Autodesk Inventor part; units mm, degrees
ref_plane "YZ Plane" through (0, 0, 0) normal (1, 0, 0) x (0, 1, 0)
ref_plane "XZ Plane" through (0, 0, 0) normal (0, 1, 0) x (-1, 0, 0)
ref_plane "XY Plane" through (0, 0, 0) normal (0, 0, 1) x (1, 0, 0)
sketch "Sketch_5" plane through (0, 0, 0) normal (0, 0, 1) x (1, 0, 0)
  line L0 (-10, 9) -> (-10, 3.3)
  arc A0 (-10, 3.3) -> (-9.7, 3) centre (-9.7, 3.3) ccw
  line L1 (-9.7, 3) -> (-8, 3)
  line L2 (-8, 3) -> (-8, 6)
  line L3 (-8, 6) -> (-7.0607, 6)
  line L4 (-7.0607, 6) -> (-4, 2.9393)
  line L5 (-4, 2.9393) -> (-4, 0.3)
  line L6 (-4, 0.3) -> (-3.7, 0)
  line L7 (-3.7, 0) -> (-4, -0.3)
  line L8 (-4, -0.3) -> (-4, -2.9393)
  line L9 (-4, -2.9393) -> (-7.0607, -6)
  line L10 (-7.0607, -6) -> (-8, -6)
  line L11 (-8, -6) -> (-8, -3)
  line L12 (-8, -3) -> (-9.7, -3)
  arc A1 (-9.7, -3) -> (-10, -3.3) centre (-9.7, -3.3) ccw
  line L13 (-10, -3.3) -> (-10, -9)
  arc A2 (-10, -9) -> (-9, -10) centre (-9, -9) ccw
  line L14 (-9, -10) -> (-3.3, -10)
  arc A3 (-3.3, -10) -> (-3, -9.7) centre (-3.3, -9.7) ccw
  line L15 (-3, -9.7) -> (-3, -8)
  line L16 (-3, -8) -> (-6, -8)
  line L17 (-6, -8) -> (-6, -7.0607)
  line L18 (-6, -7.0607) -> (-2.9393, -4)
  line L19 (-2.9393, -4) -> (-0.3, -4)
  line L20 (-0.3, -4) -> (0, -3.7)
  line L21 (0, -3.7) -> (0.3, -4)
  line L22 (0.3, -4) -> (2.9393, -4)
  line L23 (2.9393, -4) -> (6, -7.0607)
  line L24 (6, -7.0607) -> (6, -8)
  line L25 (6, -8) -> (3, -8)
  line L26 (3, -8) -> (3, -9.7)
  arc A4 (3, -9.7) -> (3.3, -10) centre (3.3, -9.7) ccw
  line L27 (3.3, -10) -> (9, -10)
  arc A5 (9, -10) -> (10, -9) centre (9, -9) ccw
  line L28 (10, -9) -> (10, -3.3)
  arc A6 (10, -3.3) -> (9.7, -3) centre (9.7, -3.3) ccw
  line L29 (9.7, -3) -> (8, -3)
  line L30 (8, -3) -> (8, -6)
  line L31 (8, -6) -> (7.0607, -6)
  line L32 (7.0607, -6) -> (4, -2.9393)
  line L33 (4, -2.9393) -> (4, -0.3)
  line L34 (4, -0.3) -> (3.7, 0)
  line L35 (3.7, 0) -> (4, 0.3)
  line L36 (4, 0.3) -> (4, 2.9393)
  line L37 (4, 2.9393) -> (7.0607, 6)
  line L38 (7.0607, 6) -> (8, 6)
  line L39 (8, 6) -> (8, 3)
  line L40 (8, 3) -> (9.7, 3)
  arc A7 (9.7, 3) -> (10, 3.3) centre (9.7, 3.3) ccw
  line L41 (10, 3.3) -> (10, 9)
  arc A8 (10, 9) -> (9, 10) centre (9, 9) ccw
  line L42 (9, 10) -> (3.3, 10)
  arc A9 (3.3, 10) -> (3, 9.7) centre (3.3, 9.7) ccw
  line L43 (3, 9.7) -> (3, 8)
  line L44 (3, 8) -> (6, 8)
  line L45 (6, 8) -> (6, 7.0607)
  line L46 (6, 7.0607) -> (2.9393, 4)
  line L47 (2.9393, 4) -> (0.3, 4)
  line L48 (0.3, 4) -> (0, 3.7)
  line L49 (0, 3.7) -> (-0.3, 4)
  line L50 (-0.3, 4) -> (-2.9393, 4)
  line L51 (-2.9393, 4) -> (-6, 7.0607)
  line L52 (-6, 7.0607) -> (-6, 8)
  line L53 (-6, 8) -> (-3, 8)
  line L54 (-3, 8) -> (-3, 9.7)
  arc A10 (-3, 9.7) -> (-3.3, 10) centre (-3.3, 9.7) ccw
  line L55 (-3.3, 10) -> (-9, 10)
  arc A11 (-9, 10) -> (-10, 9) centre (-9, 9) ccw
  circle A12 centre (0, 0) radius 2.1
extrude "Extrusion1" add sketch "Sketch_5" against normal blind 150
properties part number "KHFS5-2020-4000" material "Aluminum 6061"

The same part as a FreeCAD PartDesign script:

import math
import FreeCAD as App
import Part
import Sketcher

doc = App.newDocument("Part")
body = doc.addObject("PartDesign::Body", "Body")

# Sketch on XY plane
sketch1 = body.newObject("Sketcher::SketchObject", "Sketch")
sketch1.AttachmentSupport = (doc.getObject("XY_Plane"), [""])
sketch1.MapMode = "FlatFace"
sketch1.addGeometry([
    Part.ArcOfCircle(Part.Circle(App.Vector(-9, 9, 0), App.Vector(0, 0, 1), 1), math.radians(90), math.radians(180)),  # 0
    Part.LineSegment(App.Vector(-10, 9, 0), App.Vector(-10, 3.3, 0)),  # 1
    Part.ArcOfCircle(Part.Circle(App.Vector(-9.7, 3.3, 0), App.Vector(0, 0, 1), 0.3), math.radians(180), math.radians(270)),  # 2
    Part.LineSegment(App.Vector(-9.7, 3, 0), App.Vector(-8, 3, 0)),  # 3
    Part.LineSegment(App.Vector(-8, 3, 0), App.Vector(-8, 6, 0)),  # 4
    Part.LineSegment(App.Vector(-8, 6, 0), App.Vector(-7.06, 6, 0)),  # 5
    Part.LineSegment(App.Vector(-7.06, 6, 0), App.Vector(-4, 2.94, 0)),  # 6
    Part.LineSegment(App.Vector(-4, 2.94, 0), App.Vector(-4, 0.3, 0)),  # 7
    Part.LineSegment(App.Vector(-4, 0.3, 0), App.Vector(-3.7, 0, 0)),  # 8
    Part.LineSegment(App.Vector(-3.7, 0, 0), App.Vector(-4, -0.3, 0)),  # 9
    Part.LineSegment(App.Vector(-4, -0.3, 0), App.Vector(-4, -2.94, 0)),  # 10
    Part.LineSegment(App.Vector(-4, -2.94, 0), App.Vector(-7.06, -6, 0)),  # 11
    Part.LineSegment(App.Vector(-7.06, -6, 0), App.Vector(-8, -6, 0)),  # 12
    Part.LineSegment(App.Vector(-8, -6, 0), App.Vector(-8, -3, 0)),  # 13
    Part.LineSegment(App.Vector(-8, -3, 0), App.Vector(-9.7, -3, 0)),  # 14
    Part.ArcOfCircle(Part.Circle(App.Vector(-9.7, -3.3, 0), App.Vector(0, 0, 1), 0.3), math.radians(90), math.radians(180)),  # 15
    Part.LineSegment(App.Vector(-10, -3.3, 0), App.Vector(-10, -9, 0)),  # 16
    Part.ArcOfCircle(Part.Circle(App.Vector(-9, -9, 0), App.Vector(0, 0, 1), 1), math.radians(180), math.radians(270)),  # 17
    Part.LineSegment(App.Vector(-9, -10, 0), App.Vector(-3.3, -10, 0)),  # 18
    Part.ArcOfCircle(Part.Circle(App.Vector(-3.3, -9.7, 0), App.Vector(0, 0, 1), 0.3), math.radians(-90), math.radians(0)),  # 19
    Part.LineSegment(App.Vector(-3, -9.7, 0), App.Vector(-3, -8, 0)),  # 20
    Part.LineSegment(App.Vector(-3, -8, 0), App.Vector(-6, -8, 0)),  # 21
    Part.LineSegment(App.Vector(-6, -8, 0), App.Vector(-6, -7.06, 0)),  # 22
    Part.LineSegment(App.Vector(-6, -7.06, 0), App.Vector(-2.94, -4, 0)),  # 23
    Part.LineSegment(App.Vector(-2.94, -4, 0), App.Vector(-0.3, -4, 0)),  # 24
    Part.LineSegment(App.Vector(-0.3, -4, 0), App.Vector(0, -3.7, 0)),  # 25
    Part.LineSegment(App.Vector(0, -3.7, 0), App.Vector(0.3, -4, 0)),  # 26
    Part.LineSegment(App.Vector(0.3, -4, 0), App.Vector(2.94, -4, 0)),  # 27
    Part.LineSegment(App.Vector(2.94, -4, 0), App.Vector(6, -7.06, 0)),  # 28
    Part.LineSegment(App.Vector(6, -7.06, 0), App.Vector(6, -8, 0)),  # 29
    Part.LineSegment(App.Vector(6, -8, 0), App.Vector(3, -8, 0)),  # 30
    Part.LineSegment(App.Vector(3, -8, 0), App.Vector(3, -9.7, 0)),  # 31
    Part.ArcOfCircle(Part.Circle(App.Vector(3.3, -9.7, 0), App.Vector(0, 0, 1), 0.3), math.radians(180), math.radians(270)),  # 32
    Part.LineSegment(App.Vector(3.3, -10, 0), App.Vector(9, -10, 0)),  # 33
    Part.ArcOfCircle(Part.Circle(App.Vector(9, -9, 0), App.Vector(0, 0, 1), 1), math.radians(-90), math.radians(0)),  # 34
    Part.LineSegment(App.Vector(10, -9, 0), App.Vector(10, -3.3, 0)),  # 35
    Part.ArcOfCircle(Part.Circle(App.Vector(9.7, -3.3, 0), App.Vector(0, 0, 1), 0.3), math.radians(0), math.radians(90)),  # 36
    Part.LineSegment(App.Vector(9.7, -3, 0), App.Vector(8, -3, 0)),  # 37
    Part.LineSegment(App.Vector(8, -3, 0), App.Vector(8, -6, 0)),  # 38
    Part.LineSegment(App.Vector(8, -6, 0), App.Vector(7.06, -6, 0)),  # 39
    Part.LineSegment(App.Vector(7.06, -6, 0), App.Vector(4, -2.94, 0)),  # 40
    Part.LineSegment(App.Vector(4, -2.94, 0), App.Vector(4, -0.3, 0)),  # 41
    Part.LineSegment(App.Vector(4, -0.3, 0), App.Vector(3.7, 0, 0)),  # 42
    Part.LineSegment(App.Vector(3.7, 0, 0), App.Vector(4, 0.3, 0)),  # 43
    Part.LineSegment(App.Vector(4, 0.3, 0), App.Vector(4, 2.94, 0)),  # 44
    Part.LineSegment(App.Vector(4, 2.94, 0), App.Vector(7.06, 6, 0)),  # 45
    Part.LineSegment(App.Vector(7.06, 6, 0), App.Vector(8, 6, 0)),  # 46
    Part.LineSegment(App.Vector(8, 6, 0), App.Vector(8, 3, 0)),  # 47
    Part.LineSegment(App.Vector(8, 3, 0), App.Vector(9.7, 3, 0)),  # 48
    Part.ArcOfCircle(Part.Circle(App.Vector(9.7, 3.3, 0), App.Vector(0, 0, 1), 0.3), math.radians(-90), math.radians(0)),  # 49
    Part.LineSegment(App.Vector(10, 3.3, 0), App.Vector(10, 9, 0)),  # 50
    Part.ArcOfCircle(Part.Circle(App.Vector(9, 9, 0), App.Vector(0, 0, 1), 1), math.radians(0), math.radians(90)),  # 51
    Part.LineSegment(App.Vector(9, 10, 0), App.Vector(3.3, 10, 0)),  # 52
    Part.ArcOfCircle(Part.Circle(App.Vector(3.3, 9.7, 0), App.Vector(0, 0, 1), 0.3), math.radians(90), math.radians(180)),  # 53
    Part.LineSegment(App.Vector(3, 9.7, 0), App.Vector(3, 8, 0)),  # 54
    Part.LineSegment(App.Vector(3, 8, 0), App.Vector(6, 8, 0)),  # 55
    Part.LineSegment(App.Vector(6, 8, 0), App.Vector(6, 7.06, 0)),  # 56
    Part.LineSegment(App.Vector(6, 7.06, 0), App.Vector(2.94, 4, 0)),  # 57
    Part.LineSegment(App.Vector(2.94, 4, 0), App.Vector(0.3, 4, 0)),  # 58
    Part.LineSegment(App.Vector(0.3, 4, 0), App.Vector(0, 3.7, 0)),  # 59
    Part.LineSegment(App.Vector(0, 3.7, 0), App.Vector(-0.3, 4, 0)),  # 60
    Part.LineSegment(App.Vector(-0.3, 4, 0), App.Vector(-2.94, 4, 0)),  # 61
    Part.LineSegment(App.Vector(-2.94, 4, 0), App.Vector(-6, 7.06, 0)),  # 62
    Part.LineSegment(App.Vector(-6, 7.06, 0), App.Vector(-6, 8, 0)),  # 63
    Part.LineSegment(App.Vector(-6, 8, 0), App.Vector(-3, 8, 0)),  # 64
    Part.LineSegment(App.Vector(-3, 8, 0), App.Vector(-3, 9.7, 0)),  # 65
    Part.ArcOfCircle(Part.Circle(App.Vector(-3.3, 9.7, 0), App.Vector(0, 0, 1), 0.3), math.radians(0), math.radians(90)),  # 66
    Part.LineSegment(App.Vector(-3.3, 10, 0), App.Vector(-9, 10, 0)),  # 67
    Part.Circle(App.Vector(0, 0, 0), App.Vector(0, 0, 1), 2.1),  # 68
], False)
sketch1.addConstraint([
    Sketcher.Constraint("Tangent", 0, 2, 1, 1),
    Sketcher.Constraint("Tangent", 1, 2, 2, 1),
    Sketcher.Constraint("Tangent", 2, 2, 3, 1),
    Sketcher.Constraint("Coincident", 3, 2, 4, 1),
    Sketcher.Constraint("Coincident", 4, 2, 5, 1),
    Sketcher.Constraint("Coincident", 5, 2, 6, 1),
    Sketcher.Constraint("Coincident", 6, 2, 7, 1),
    Sketcher.Constraint("Coincident", 7, 2, 8, 1),
    Sketcher.Constraint("Coincident", 8, 2, 9, 1),
    Sketcher.Constraint("Coincident", 9, 2, 10, 1),
    Sketcher.Constraint("Coincident", 10, 2, 11, 1),
    Sketcher.Constraint("Coincident", 11, 2, 12, 1),
    Sketcher.Constraint("Coincident", 12, 2, 13, 1),
    Sketcher.Constraint("Coincident", 13, 2, 14, 1),
    Sketcher.Constraint("Tangent", 14, 2, 15, 1),
    Sketcher.Constraint("Tangent", 15, 2, 16, 1),
    Sketcher.Constraint("Tangent", 16, 2, 17, 1),
    Sketcher.Constraint("Tangent", 17, 2, 18, 1),
    Sketcher.Constraint("Tangent", 18, 2, 19, 1),
    Sketcher.Constraint("Tangent", 19, 2, 20, 1),
    Sketcher.Constraint("Coincident", 20, 2, 21, 1),
    Sketcher.Constraint("Coincident", 21, 2, 22, 1),
    Sketcher.Constraint("Coincident", 22, 2, 23, 1),
    Sketcher.Constraint("Coincident", 23, 2, 24, 1),
    Sketcher.Constraint("Coincident", 24, 2, 25, 1),
    Sketcher.Constraint("Coincident", 25, 2, 26, 1),
    Sketcher.Constraint("Coincident", 26, 2, 27, 1),
    Sketcher.Constraint("Coincident", 27, 2, 28, 1),
    Sketcher.Constraint("Coincident", 28, 2, 29, 1),
    Sketcher.Constraint("Coincident", 29, 2, 30, 1),
    Sketcher.Constraint("Coincident", 30, 2, 31, 1),
    Sketcher.Constraint("Tangent", 31, 2, 32, 1),
    Sketcher.Constraint("Tangent", 32, 2, 33, 1),
    Sketcher.Constraint("Tangent", 33, 2, 34, 1),
    Sketcher.Constraint("Tangent", 34, 2, 35, 1),
    Sketcher.Constraint("Tangent", 35, 2, 36, 1),
    Sketcher.Constraint("Tangent", 36, 2, 37, 1),
    Sketcher.Constraint("Coincident", 37, 2, 38, 1),
    Sketcher.Constraint("Coincident", 38, 2, 39, 1),
    Sketcher.Constraint("Coincident", 39, 2, 40, 1),
    Sketcher.Constraint("Coincident", 40, 2, 41, 1),
    Sketcher.Constraint("Coincident", 41, 2, 42, 1),
    Sketcher.Constraint("Coincident", 42, 2, 43, 1),
    Sketcher.Constraint("Coincident", 43, 2, 44, 1),
    Sketcher.Constraint("Coincident", 44, 2, 45, 1),
    Sketcher.Constraint("Coincident", 45, 2, 46, 1),
    Sketcher.Constraint("Coincident", 46, 2, 47, 1),
    Sketcher.Constraint("Coincident", 47, 2, 48, 1),
    Sketcher.Constraint("Tangent", 48, 2, 49, 1),
    Sketcher.Constraint("Tangent", 49, 2, 50, 1),
    Sketcher.Constraint("Tangent", 50, 2, 51, 1),
    Sketcher.Constraint("Tangent", 51, 2, 52, 1),
    Sketcher.Constraint("Tangent", 52, 2, 53, 1),
    Sketcher.Constraint("Tangent", 53, 2, 54, 1),
    Sketcher.Constraint("Coincident", 54, 2, 55, 1),
    Sketcher.Constraint("Coincident", 55, 2, 56, 1),
    Sketcher.Constraint("Coincident", 56, 2, 57, 1),
    Sketcher.Constraint("Coincident", 57, 2, 58, 1),
    Sketcher.Constraint("Coincident", 58, 2, 59, 1),
    Sketcher.Constraint("Coincident", 59, 2, 60, 1),
    Sketcher.Constraint("Coincident", 60, 2, 61, 1),
    Sketcher.Constraint("Coincident", 61, 2, 62, 1),
    Sketcher.Constraint("Coincident", 62, 2, 63, 1),
    Sketcher.Constraint("Coincident", 63, 2, 64, 1),
    Sketcher.Constraint("Coincident", 64, 2, 65, 1),
    Sketcher.Constraint("Tangent", 65, 2, 66, 1),
    Sketcher.Constraint("Tangent", 66, 2, 67, 1),
    Sketcher.Constraint("Tangent", 67, 2, 0, 1),
    Sketcher.Constraint("Vertical", 1),
    Sketcher.Constraint("Horizontal", 3),
    Sketcher.Constraint("Vertical", 4),
    Sketcher.Constraint("Horizontal", 5),
    Sketcher.Constraint("Vertical", 7),
    Sketcher.Constraint("Vertical", 10),
    Sketcher.Constraint("Horizontal", 12),
    Sketcher.Constraint("Vertical", 13),
    Sketcher.Constraint("Horizontal", 14),
    Sketcher.Constraint("Vertical", 16),
    Sketcher.Constraint("Horizontal", 18),
    Sketcher.Constraint("Vertical", 20),
    Sketcher.Constraint("Horizontal", 21),
    Sketcher.Constraint("Vertical", 22),
    Sketcher.Constraint("Horizontal", 24),
    Sketcher.Constraint("Horizontal", 27),
    Sketcher.Constraint("Vertical", 29),
    Sketcher.Constraint("Horizontal", 30),
    Sketcher.Constraint("Vertical", 31),
    Sketcher.Constraint("Horizontal", 33),
    Sketcher.Constraint("Vertical", 35),
    Sketcher.Constraint("Horizontal", 37),
    Sketcher.Constraint("Vertical", 38),
    Sketcher.Constraint("Horizontal", 39),
    Sketcher.Constraint("Vertical", 41),
    Sketcher.Constraint("Vertical", 44),
    Sketcher.Constraint("Horizontal", 46),
    Sketcher.Constraint("Vertical", 47),
    Sketcher.Constraint("Horizontal", 48),
    Sketcher.Constraint("Vertical", 50),
    Sketcher.Constraint("Horizontal", 52),
    Sketcher.Constraint("Vertical", 54),
    Sketcher.Constraint("Horizontal", 55),
    Sketcher.Constraint("Vertical", 56),
    Sketcher.Constraint("Horizontal", 58),
    Sketcher.Constraint("Horizontal", 61),
    Sketcher.Constraint("Vertical", 63),
    Sketcher.Constraint("Horizontal", 64),
    Sketcher.Constraint("Vertical", 65),
    Sketcher.Constraint("Horizontal", 67),
    Sketcher.Constraint("Coincident", 68, 3, -1, 1),
    Sketcher.Constraint("Equal", 2, 15),
    Sketcher.Constraint("Equal", 0, 17),
    Sketcher.Constraint("Equal", 15, 19),
    Sketcher.Constraint("Equal", 19, 32),
    Sketcher.Constraint("Equal", 17, 34),
    Sketcher.Constraint("Equal", 32, 36),
    Sketcher.Constraint("Equal", 36, 49),
    Sketcher.Constraint("Equal", 34, 51),
    Sketcher.Constraint("Equal", 49, 53),
    Sketcher.Constraint("Equal", 53, 66),
    Sketcher.Constraint("Symmetric", 0, 3, 34, 3, -1, 1),
    Sketcher.Constraint("Symmetric", 15, 3, 49, 3, -1, 1),
    Sketcher.Constraint("Symmetric", 19, 3, 53, 3, -1, 1),
    Sketcher.Constraint("Symmetric", 3, 2, 37, 2, -1, 1),
    Sketcher.Constraint("Symmetric", 5, 2, 39, 2, -1, 1),
    Sketcher.Constraint("Symmetric", 6, 2, 40, 2, -1, 1),
    Sketcher.Constraint("Symmetric", 8, 2, 42, 2, -1, 1),
    Sketcher.Constraint("Symmetric", 9, 2, 43, 2, -1, 1),
    Sketcher.Constraint("Symmetric", 11, 2, 45, 2, -1, 1),
    Sketcher.Constraint("Symmetric", 21, 2, 55, 2, -1, 1),
    Sketcher.Constraint("Symmetric", 23, 2, 57, 2, -1, 1),
    Sketcher.Constraint("Symmetric", 25, 2, 59, 2, -1, 1),
    Sketcher.Constraint("Symmetric", 26, 2, 60, 2, -1, 1),
    Sketcher.Constraint("Symmetric", 28, 2, 62, 2, -1, 1),
    Sketcher.Constraint("Symmetric", 30, 2, 64, 2, -1, 1),
    Sketcher.Constraint("Symmetric", 19, 3, 32, 3, -2),
    Sketcher.Constraint("Symmetric", 15, 3, 36, 3, -2),
    Sketcher.Constraint("Symmetric", 24, 2, 26, 2, -2),
    Sketcher.Constraint("Symmetric", 22, 2, 28, 2, -2),
    Sketcher.Constraint("Symmetric", 12, 2, 38, 2, -2),
    Sketcher.Constraint("Symmetric", 10, 2, 40, 2, -2),
    Sketcher.Constraint("PointOnObject", 8, 2, -1),
    Sketcher.Constraint("PointOnObject", 25, 2, -2),
    Sketcher.Constraint("Parallel", 6, 8),
    Sketcher.Constraint("Perpendicular", 8, 9),
    Sketcher.Constraint("Parallel", 9, 11),
    Sketcher.Constraint("Parallel", 11, 23),
    Sketcher.Constraint("Parallel", 23, 25),
    Sketcher.Constraint("Perpendicular", 25, 26),
    Sketcher.Constraint("Parallel", 26, 28),
    Sketcher.Constraint("Parallel", 40, 42),
    Sketcher.Constraint("Parallel", 43, 45),
    Sketcher.Constraint("Parallel", 45, 57),
    Sketcher.Constraint("Parallel", 57, 59),
    Sketcher.Constraint("Parallel", 60, 62),
    Sketcher.Constraint("Horizontal", 21, 2, 29, 2),
    Sketcher.Constraint("Vertical", 38, 2, 46, 2),
    Sketcher.Constraint("Equal", 67, 1),
    Sketcher.Constraint("Equal", 64, 4),
    Sketcher.Constraint("Equal", 61, 7),
    Sketcher.Constraint("Equal", 48, 20),
    Sketcher.Constraint("Equal", 46, 22),
    Sketcher.Constraint("Equal", 11, 23),
    Sketcher.Constraint("Equal", 9, 25),
    Sketcher.Constraint("Radius", 0, 1.0),
    Sketcher.Constraint("Diameter", 68, 4.2),
    Sketcher.Constraint("Radius", 2, 0.3),
    Sketcher.Constraint("DistanceX", 21, 2, 21, 1, 3.0),
    Sketcher.Constraint("DistanceX", 3, 1, 3, 2, 1.7),
    Sketcher.Constraint("DistanceX", 18, 1, 18, 2, 5.7),
    Sketcher.Constraint("DistanceX", 0, 3, -1, 1, 9.0),
    Sketcher.Constraint("DistanceX", 6, 2, -1, 1, 4.0),
    Sketcher.Constraint("DistanceY", -1, 1, 7, 2, 0.3),
    Sketcher.Constraint("DistanceX", 5, 1, 5, 2, 0.9393),
])
pad1 = body.newObject("PartDesign::Pad", "Pad")
pad1.Profile = sketch1
pad1.Length = 150
pad1.Reversed = True

doc.recompute()
